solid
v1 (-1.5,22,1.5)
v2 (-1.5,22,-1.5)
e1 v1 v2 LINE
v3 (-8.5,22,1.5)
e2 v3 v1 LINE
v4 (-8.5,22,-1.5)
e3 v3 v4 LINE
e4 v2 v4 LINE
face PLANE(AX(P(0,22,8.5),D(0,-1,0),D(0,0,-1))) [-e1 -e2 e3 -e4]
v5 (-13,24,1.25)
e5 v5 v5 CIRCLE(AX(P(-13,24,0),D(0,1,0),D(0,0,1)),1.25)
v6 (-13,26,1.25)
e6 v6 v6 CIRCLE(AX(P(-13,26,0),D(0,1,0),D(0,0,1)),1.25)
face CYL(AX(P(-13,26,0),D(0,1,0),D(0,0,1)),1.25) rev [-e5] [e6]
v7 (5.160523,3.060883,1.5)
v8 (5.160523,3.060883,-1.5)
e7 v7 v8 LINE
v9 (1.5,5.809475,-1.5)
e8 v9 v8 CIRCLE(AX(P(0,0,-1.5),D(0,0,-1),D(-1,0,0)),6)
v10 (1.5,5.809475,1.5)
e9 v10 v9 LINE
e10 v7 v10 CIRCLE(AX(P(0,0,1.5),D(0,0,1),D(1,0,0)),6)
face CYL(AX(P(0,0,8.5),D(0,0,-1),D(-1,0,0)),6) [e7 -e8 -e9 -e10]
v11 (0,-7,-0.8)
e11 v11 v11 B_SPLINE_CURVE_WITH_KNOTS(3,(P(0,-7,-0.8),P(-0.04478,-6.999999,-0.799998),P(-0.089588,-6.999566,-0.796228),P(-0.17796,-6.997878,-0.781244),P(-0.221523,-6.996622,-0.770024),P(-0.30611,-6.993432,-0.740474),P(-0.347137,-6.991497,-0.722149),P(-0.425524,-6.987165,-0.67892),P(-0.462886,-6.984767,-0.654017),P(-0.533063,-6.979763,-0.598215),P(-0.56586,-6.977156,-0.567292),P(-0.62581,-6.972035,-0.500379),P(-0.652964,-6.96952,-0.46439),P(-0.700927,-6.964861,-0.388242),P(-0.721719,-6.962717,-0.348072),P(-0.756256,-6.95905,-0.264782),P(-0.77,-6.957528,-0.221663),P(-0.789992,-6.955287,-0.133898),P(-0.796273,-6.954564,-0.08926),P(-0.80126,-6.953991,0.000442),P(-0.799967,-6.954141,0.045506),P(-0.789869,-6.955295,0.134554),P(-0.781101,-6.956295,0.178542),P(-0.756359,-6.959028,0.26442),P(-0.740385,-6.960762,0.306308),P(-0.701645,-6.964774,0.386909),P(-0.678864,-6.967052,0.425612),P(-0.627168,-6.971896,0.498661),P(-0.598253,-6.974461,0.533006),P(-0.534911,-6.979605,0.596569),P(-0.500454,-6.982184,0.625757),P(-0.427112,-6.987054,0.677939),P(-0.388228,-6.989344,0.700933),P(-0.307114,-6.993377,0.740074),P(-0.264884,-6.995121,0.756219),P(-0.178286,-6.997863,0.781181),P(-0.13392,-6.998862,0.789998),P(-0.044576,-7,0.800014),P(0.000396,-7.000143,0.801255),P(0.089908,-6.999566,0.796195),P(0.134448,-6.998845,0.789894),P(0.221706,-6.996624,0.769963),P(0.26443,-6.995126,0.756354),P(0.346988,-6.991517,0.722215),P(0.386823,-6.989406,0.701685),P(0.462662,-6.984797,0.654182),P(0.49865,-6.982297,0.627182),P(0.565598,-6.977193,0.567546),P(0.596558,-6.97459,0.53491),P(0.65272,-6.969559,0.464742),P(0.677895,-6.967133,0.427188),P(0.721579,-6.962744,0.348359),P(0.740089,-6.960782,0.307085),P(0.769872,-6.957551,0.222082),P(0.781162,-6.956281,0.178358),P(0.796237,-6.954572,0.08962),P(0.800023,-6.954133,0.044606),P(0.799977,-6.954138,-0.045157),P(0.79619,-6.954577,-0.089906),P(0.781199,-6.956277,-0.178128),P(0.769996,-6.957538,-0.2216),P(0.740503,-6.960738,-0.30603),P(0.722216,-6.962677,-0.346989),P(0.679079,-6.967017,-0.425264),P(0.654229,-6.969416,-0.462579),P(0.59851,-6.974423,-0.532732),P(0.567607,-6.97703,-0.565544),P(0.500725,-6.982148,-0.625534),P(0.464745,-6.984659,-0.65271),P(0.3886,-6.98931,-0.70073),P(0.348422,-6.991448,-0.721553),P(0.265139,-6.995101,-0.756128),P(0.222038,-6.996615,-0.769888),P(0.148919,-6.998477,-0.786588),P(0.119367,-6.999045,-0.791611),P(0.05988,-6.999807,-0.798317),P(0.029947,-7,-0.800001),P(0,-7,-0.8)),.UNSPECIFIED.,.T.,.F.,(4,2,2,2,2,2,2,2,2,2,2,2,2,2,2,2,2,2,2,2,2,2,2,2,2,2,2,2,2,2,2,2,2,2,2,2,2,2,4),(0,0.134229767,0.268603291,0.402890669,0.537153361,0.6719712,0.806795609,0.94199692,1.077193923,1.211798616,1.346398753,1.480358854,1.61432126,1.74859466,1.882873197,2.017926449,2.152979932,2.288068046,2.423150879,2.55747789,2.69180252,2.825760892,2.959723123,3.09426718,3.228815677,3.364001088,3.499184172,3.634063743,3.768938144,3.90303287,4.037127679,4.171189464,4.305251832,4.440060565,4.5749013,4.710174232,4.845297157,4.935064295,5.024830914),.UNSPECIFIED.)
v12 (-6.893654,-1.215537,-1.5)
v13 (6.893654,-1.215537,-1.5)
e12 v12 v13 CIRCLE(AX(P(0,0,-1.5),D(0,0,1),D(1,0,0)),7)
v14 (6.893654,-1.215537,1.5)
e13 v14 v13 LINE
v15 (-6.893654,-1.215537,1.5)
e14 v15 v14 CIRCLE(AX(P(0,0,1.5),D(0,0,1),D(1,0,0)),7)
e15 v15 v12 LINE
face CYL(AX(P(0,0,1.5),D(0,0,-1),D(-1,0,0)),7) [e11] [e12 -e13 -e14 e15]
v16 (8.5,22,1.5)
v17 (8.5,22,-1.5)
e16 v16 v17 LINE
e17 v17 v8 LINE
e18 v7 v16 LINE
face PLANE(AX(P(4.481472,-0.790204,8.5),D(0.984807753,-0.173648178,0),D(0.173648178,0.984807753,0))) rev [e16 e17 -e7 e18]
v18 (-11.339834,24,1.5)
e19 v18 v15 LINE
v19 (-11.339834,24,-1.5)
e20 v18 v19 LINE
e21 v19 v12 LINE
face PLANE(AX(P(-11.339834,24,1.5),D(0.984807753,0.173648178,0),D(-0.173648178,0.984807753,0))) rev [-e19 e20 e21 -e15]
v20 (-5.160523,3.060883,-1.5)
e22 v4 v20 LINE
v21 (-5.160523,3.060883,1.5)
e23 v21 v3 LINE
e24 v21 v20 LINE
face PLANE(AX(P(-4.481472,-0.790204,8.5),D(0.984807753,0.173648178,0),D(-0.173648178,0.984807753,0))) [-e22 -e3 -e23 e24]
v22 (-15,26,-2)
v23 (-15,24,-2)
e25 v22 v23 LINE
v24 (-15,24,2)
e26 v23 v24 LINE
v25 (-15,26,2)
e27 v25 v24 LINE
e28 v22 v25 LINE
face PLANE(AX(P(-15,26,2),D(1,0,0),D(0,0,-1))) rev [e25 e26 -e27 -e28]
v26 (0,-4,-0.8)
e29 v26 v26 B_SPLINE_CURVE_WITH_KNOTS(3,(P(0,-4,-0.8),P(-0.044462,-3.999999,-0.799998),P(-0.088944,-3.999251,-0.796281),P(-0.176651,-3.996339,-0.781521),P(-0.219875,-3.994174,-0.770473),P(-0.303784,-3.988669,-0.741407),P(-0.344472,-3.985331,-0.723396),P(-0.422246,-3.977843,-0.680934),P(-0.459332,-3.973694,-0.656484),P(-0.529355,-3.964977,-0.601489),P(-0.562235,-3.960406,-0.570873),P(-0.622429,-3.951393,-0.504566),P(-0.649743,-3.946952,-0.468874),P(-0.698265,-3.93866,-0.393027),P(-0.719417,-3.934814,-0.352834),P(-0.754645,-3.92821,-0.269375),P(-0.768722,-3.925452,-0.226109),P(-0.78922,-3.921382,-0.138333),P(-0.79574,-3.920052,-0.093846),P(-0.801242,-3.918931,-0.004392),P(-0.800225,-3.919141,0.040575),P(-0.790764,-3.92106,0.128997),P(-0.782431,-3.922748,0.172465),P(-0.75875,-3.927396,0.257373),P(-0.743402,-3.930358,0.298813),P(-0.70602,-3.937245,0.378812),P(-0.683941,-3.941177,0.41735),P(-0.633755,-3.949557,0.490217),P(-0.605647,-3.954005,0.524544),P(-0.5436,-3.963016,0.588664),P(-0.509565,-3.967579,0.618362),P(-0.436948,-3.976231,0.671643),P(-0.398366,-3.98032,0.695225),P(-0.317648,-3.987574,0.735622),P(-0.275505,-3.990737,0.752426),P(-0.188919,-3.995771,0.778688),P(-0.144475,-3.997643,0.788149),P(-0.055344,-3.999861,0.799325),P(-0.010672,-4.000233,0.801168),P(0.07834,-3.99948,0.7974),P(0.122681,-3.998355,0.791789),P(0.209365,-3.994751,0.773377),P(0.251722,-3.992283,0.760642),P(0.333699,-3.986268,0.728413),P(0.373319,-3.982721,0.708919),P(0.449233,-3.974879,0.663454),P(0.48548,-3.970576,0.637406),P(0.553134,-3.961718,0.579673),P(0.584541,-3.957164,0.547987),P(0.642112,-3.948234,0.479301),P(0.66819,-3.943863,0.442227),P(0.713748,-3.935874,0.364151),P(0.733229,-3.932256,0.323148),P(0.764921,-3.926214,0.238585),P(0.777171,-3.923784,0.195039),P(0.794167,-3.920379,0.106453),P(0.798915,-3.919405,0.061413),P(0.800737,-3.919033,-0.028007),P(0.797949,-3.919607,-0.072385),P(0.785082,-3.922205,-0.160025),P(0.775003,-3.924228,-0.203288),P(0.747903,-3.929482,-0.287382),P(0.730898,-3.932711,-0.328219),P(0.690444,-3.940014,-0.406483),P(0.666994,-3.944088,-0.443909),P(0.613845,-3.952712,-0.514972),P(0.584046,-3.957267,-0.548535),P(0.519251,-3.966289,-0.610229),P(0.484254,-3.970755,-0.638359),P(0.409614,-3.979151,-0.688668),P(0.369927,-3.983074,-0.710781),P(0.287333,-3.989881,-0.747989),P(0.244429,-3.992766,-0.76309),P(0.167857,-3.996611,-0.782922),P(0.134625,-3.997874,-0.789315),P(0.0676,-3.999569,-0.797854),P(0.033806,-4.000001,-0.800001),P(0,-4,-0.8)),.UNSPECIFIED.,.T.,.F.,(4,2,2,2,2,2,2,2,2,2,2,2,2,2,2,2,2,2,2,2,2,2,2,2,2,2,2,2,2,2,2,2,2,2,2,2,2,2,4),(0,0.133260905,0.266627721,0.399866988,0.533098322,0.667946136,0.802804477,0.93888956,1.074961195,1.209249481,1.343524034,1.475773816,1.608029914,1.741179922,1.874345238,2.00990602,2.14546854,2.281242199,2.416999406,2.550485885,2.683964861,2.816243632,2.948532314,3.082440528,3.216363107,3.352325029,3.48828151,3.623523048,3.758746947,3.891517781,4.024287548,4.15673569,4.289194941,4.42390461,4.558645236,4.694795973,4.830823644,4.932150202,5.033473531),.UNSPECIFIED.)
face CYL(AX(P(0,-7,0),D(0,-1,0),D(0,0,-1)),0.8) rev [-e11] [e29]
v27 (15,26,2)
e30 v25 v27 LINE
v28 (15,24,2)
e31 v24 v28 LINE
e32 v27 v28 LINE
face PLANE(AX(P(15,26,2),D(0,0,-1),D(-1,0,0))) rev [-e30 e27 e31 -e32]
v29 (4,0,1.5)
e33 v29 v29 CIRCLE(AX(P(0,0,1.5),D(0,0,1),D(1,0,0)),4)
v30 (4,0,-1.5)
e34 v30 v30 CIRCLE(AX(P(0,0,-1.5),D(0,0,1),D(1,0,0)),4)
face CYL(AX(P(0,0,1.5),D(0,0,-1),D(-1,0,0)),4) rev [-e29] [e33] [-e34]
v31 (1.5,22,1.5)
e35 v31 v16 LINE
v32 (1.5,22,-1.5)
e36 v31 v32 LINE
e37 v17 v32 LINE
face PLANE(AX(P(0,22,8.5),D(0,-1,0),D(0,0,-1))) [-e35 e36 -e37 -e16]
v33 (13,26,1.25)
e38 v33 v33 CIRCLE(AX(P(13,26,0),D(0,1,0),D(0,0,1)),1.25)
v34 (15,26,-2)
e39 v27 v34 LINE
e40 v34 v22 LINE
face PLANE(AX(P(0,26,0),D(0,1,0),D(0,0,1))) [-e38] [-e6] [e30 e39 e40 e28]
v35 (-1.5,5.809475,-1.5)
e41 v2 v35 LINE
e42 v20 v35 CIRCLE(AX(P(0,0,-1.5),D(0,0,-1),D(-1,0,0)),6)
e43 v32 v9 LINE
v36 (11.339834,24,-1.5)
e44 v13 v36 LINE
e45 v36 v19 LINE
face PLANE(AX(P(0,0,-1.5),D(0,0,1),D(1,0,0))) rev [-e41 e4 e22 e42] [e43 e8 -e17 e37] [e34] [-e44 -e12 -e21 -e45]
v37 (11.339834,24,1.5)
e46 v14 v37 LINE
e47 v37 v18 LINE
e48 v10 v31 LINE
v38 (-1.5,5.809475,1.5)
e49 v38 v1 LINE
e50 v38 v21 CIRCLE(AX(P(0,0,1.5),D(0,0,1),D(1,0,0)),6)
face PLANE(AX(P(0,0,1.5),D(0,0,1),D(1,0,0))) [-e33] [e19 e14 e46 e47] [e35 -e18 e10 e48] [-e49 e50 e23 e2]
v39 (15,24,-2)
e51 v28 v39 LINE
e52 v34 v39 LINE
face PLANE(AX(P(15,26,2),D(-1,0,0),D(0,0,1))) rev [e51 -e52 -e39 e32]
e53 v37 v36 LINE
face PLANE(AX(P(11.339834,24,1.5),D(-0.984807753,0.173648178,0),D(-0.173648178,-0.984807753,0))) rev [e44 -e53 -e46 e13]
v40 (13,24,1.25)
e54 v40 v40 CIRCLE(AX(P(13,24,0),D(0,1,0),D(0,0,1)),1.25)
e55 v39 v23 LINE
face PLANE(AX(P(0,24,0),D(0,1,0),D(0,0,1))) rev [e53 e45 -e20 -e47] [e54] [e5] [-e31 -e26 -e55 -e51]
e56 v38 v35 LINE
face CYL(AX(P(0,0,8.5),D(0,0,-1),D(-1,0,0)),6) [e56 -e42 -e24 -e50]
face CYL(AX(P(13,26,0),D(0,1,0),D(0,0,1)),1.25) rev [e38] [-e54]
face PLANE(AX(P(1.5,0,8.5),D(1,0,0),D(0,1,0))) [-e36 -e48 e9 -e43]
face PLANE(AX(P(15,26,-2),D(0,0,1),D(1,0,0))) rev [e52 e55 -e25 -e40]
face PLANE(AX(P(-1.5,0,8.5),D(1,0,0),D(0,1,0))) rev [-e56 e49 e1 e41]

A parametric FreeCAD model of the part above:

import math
import FreeCAD as App
import Part
import Sketcher

V = App.Vector
Q = App.Units.Quantity


def add_polygon(sketch, points):
    """Adds a closed chain of lines whose ends are joined by coincident constraints."""
    first, n = sketch.GeometryCount, len(points)
    for a, b in zip(points, points[1:] + points[:1]):
        sketch.addGeometry(Part.LineSegment(App.Vector(*a, 0), App.Vector(*b, 0)), False)
    for i in range(n):
        sketch.addConstraint(Sketcher.Constraint("Coincident", first + i, 2, first + (i + 1) % n, 1))

doc = App.newDocument("Part")
body = doc.addObject("PartDesign::Body", "Body")

# Sketch on XY plane
sketch1 = doc.addObject("Sketcher::SketchObject", "Sketch")
body.addObject(sketch1)
sketch1.AttachmentSupport = (doc.XY_Plane, [""])
sketch1.MapMode = "FlatFace"
sketch1.addGeometry([
    Part.LineSegment(V(6.9, -1.2, 0), V(11.3, 24, 0)),  # 0
    Part.LineSegment(V(11.3, 24, 0), V(-11.3, 24, 0)),  # 1
    Part.LineSegment(V(-11.3, 24, 0), V(-6.9, -1.2, 0)),  # 2
    Part.ArcOfCircle(Part.Circle(V(0, 0, 0), V(0, 0, 1), 7), math.radians(-170), math.radians(-10)),  # 3
    Part.Circle(V(0, 0, 0), V(0, 0, 1), 4),  # 4
], False)
sketch1.addConstraint([
    Sketcher.Constraint("Coincident", 0, 2, 1, 1),
    Sketcher.Constraint("Coincident", 1, 2, 2, 1),
    Sketcher.Constraint("Tangent", 2, 2, 3, 1),
    Sketcher.Constraint("Tangent", 3, 2, 0, 1),
    Sketcher.Constraint("Horizontal", 1),
    Sketcher.Constraint("Coincident", 3, 3, -1, 1),
    Sketcher.Constraint("Coincident", 4, 3, -1, 1),
    Sketcher.Constraint("Horizontal", 2, 2, 3, 2),
    Sketcher.Constraint("Diameter", 4, 8.0),
    Sketcher.Constraint("Radius", 3, 7.0),
    Sketcher.Constraint("Angle", 0, Q("80 deg")),
    Sketcher.Constraint("DistanceY", -1, 1, 0, 2, 24.0),
])
pad1 = doc.addObject("PartDesign::Pad", "Pad")
body.addObject(pad1)
pad1.Profile = sketch1
pad1.Length = 3
pad1.Midplane = True

# Sketch on XZ plane
sketch2 = doc.addObject("Sketcher::SketchObject", "Sketch001")
body.addObject(sketch2)
sketch2.AttachmentSupport = (doc.XZ_Plane, [""])
sketch2.MapMode = "FlatFace"
sketch2.AttachmentOffset = App.Placement(V(0, 0, -24), App.Rotation())
add_polygon(sketch2, [(-15, -2), (-15, 2), (15, 2), (15, -2)])  # lines 0-3
sketch2.addConstraint([
    Sketcher.Constraint("Vertical", 0),
    Sketcher.Constraint("Horizontal", 1),
    Sketcher.Constraint("Vertical", 2),
    Sketcher.Constraint("Horizontal", 3),
    Sketcher.Constraint("Symmetric", 0, 2, 2, 2, -1, 1),
    Sketcher.Constraint("DistanceX", 1, 1, 1, 2, 30.0),
    Sketcher.Constraint("DistanceY", 0, 1, 0, 2, 4.0),
])
pad2 = doc.addObject("PartDesign::Pad", "Pad001")
body.addObject(pad2)
pad2.Profile = sketch2
pad2.Length = 2
pad2.Reversed = True

# Sketch on XZ plane
sketch3 = doc.addObject("Sketcher::SketchObject", "Sketch002")
body.addObject(sketch3)
sketch3.AttachmentSupport = (doc.XZ_Plane, [""])
sketch3.MapMode = "FlatFace"
sketch3.AttachmentOffset = App.Placement(V(0, 0, -26), App.Rotation())
sketch3.addGeometry([
    Part.Circle(V(-13, 0, 0), V(0, 0, 1), 1.2),
    Part.Circle(V(13, 0, 0), V(0, 0, 1), 1.2),
], False)
sketch3.addConstraint([
    Sketcher.Constraint("Equal", 0, 1),
    Sketcher.Constraint("Symmetric", 0, 3, 1, 3, -1, 1),
    Sketcher.Constraint("PointOnObject", 0, 3, -1),
    Sketcher.Constraint("Diameter", 0, 2.5),
    Sketcher.Constraint("DistanceX", 0, 3, -1, 1, 13.0),
])
doc.recompute()
hole = doc.addObject("PartDesign::Hole", "Hole")
body.addObject(hole)
hole.Profile = sketch3
hole.ThreadType = "None"
hole.Diameter = 2.5
hole.DepthType = "Dimension"
hole.Depth = 2
hole.DrillPoint = "Angled"
hole.DrillPointAngle = 118
hole.Reversed = True

# Sketch on XY plane
sketch4 = doc.addObject("Sketcher::SketchObject", "Sketch003")
body.addObject(sketch4)
sketch4.AttachmentSupport = (doc.XY_Plane, [""])
sketch4.MapMode = "FlatFace"
sketch4.AttachmentOffset = App.Placement(V(0, 0, -1.5), App.Rotation())
sketch4.addGeometry([
    Part.LineSegment(V(1.5, 22, 0), V(8.5, 22, 0)),  # 0
    Part.LineSegment(V(8.5, 22, 0), V(5.2, 3.1, 0)),  # 1
    Part.ArcOfCircle(Part.Circle(V(0, 0, 0), V(0, 0, 1), 6), math.radians(31), math.radians(76)),  # 2
    Part.LineSegment(V(1.5, 5.8, 0), V(1.5, 22, 0)),  # 3
    Part.LineSegment(V(-8.5, 22, 0), V(-1.5, 22, 0)),  # 4
    Part.LineSegment(V(-1.5, 22, 0), V(-1.5, 5.8, 0)),  # 5
    Part.ArcOfCircle(Part.Circle(V(0, 0, 0), V(0, 0, 1), 6), math.radians(104), math.radians(149)),  # 6
    Part.LineSegment(V(-5.2, 3.1, 0), V(-8.5, 22, 0)),  # 7
], False)
sketch4.addConstraint([
    Sketcher.Constraint("Coincident", 0, 2, 1, 1),
    Sketcher.Constraint("Coincident", 1, 2, 2, 1),
    Sketcher.Constraint("Coincident", 2, 2, 3, 1),
    Sketcher.Constraint("Coincident", 3, 2, 0, 1),
    Sketcher.Constraint("Coincident", 4, 2, 5, 1),
    Sketcher.Constraint("Coincident", 5, 2, 6, 1),
    Sketcher.Constraint("Coincident", 6, 2, 7, 1),
    Sketcher.Constraint("Coincident", 7, 2, 4, 1),
    Sketcher.Constraint("Horizontal", 0),
    Sketcher.Constraint("Vertical", 3),
    Sketcher.Constraint("Horizontal", 4),
    Sketcher.Constraint("Vertical", 5),
    Sketcher.Constraint("Coincident", 2, 3, -1, 1),
    Sketcher.Constraint("Coincident", 6, 3, -1, 1),
    Sketcher.Constraint("Equal", 2, 6),
    Sketcher.Constraint("Symmetric", 3, 2, 4, 2, -2),
    Sketcher.Constraint("Horizontal", 1, 2, 6, 2),
    Sketcher.Constraint("Equal", 0, 4),
    Sketcher.Constraint("Radius", 2, 6.0),
    Sketcher.Constraint("DistanceX", 0, 1, 0, 2, 7.0),
    Sketcher.Constraint("Angle", 1, Q("-100 deg")),
    Sketcher.Constraint("DistanceY", -1, 1, 0, 2, 22.0),
    Sketcher.Constraint("DistanceX", 4, 2, 3, 2, 3.0),
])
pocket1 = doc.addObject("PartDesign::Pocket", "Pocket")
body.addObject(pocket1)
pocket1.Profile = sketch4
pocket1.Length = 10
pocket1.Reversed = True

# Sketch on XZ plane
sketch5 = doc.addObject("Sketcher::SketchObject", "Sketch004")
body.addObject(sketch5)
sketch5.AttachmentSupport = (doc.XZ_Plane, [""])
sketch5.MapMode = "FlatFace"
sketch5.AttachmentOffset = App.Placement(V(0, 0, 7), App.Rotation())
sketch5.addGeometry(Part.Circle(V(0, 0, 0), V(0, 0, 1), 0.8), False)
sketch5.addConstraint([
    Sketcher.Constraint("Coincident", 0, 3, -1, 1),
    Sketcher.Constraint("Diameter", 0, 1.6),
])
doc.recompute()
hole2 = doc.addObject("PartDesign::Hole", "Hole001")
body.addObject(hole2)
hole2.Profile = sketch5
hole2.ThreadType = "None"
hole2.Diameter = 1.6
hole2.DepthType = "Dimension"
hole2.Depth = 4.2
hole2.DrillPoint = "Angled"
hole2.DrillPointAngle = 118

doc.recompute()
